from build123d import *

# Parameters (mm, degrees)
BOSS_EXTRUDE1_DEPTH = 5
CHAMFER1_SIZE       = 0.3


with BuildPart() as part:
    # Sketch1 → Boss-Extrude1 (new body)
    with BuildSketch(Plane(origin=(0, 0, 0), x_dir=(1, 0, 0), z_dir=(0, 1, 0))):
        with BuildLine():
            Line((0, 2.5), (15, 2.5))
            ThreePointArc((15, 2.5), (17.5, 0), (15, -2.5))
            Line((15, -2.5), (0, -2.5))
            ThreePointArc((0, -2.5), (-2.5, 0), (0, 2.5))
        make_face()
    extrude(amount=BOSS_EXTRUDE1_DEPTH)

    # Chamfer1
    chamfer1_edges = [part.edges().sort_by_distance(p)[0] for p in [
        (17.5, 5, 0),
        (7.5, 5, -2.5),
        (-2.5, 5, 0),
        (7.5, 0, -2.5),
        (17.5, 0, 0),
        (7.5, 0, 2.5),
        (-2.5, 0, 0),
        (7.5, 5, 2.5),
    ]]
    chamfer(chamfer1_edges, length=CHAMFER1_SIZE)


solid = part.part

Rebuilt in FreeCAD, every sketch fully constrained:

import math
import FreeCAD as App
import Part
import Sketcher

V = App.Vector
Q = App.Units.Quantity


def edges_at(feature, points):
    """Names of the edges that pass closest to the given points."""
    edges = feature.Shape.Edges
    near = lambda p: min(range(len(edges)), key=lambda i: edges[i].distToShape(Part.Vertex(*p))[0])
    return sorted({f"Edge{near(p) + 1}" for p in points})

doc = App.newDocument("Part")
body = doc.addObject("PartDesign::Body", "Body")

sketch1 = doc.addObject("Sketcher::SketchObject", "Sketch")
body.addObject(sketch1)
sketch1.AttachmentSupport = (doc.XZ_Plane, [""])
sketch1.MapMode = "FlatFace"
sketch1.addGeometry(Part.LineSegment(V(15, -2.5, 0), V(0, -2.5, 0)), False)
sketch1.addGeometry(Part.ArcOfCircle(Part.Circle(V(0, 0, 0), V(0, 0, 1), 2.5), math.radians(90), math.radians(270)), False)
sketch1.addGeometry(Part.LineSegment(V(0, 2.5, 0), V(15, 2.5, 0)), False)
sketch1.addGeometry(Part.ArcOfCircle(Part.Circle(V(15, 0, 0), V(0, 0, 1), 2.5), math.radians(-90), math.radians(90)), False)
sketch1.addConstraint(Sketcher.Constraint("Tangent", 0, 2, 1, 2))
sketch1.addConstraint(Sketcher.Constraint("Tangent", 1, 1, 2, 1))
sketch1.addConstraint(Sketcher.Constraint("Tangent", 2, 2, 3, 2))
sketch1.addConstraint(Sketcher.Constraint("Tangent", 3, 1, 0, 1))
sketch1.addConstraint(Sketcher.Constraint("Horizontal", 0))
sketch1.addConstraint(Sketcher.Constraint("Horizontal", 2))
sketch1.addConstraint(Sketcher.Constraint("Coincident", 1, 3, -1, 1))
sketch1.addConstraint(Sketcher.Constraint("Radius", 1, Q("2.5 mm")))
sketch1.addConstraint(Sketcher.Constraint("DistanceX", 0, 2, 0, 1, Q("15 mm")))
pad1 = doc.addObject("PartDesign::Pad", "Pad")
body.addObject(pad1)
pad1.Profile = sketch1
pad1.Length = 5
pad1.Reversed = True
doc.recompute()

chamfer = doc.addObject("PartDesign::Chamfer", "Chamfer")
body.addObject(chamfer)
chamfer.Base = (pad1, edges_at(pad1, [
    (17.5, 5, 0),
    (7.5, 5, -2.5),
    (-2.5, 5, 0),
    (7.5, 0, -2.5),
    (17.5, 0, 0),
    (7.5, 0, 2.5),
    (-2.5, 0, 0),
    (7.5, 5, 2.5),
]))
chamfer.Size = 0.3

doc.recompute()
